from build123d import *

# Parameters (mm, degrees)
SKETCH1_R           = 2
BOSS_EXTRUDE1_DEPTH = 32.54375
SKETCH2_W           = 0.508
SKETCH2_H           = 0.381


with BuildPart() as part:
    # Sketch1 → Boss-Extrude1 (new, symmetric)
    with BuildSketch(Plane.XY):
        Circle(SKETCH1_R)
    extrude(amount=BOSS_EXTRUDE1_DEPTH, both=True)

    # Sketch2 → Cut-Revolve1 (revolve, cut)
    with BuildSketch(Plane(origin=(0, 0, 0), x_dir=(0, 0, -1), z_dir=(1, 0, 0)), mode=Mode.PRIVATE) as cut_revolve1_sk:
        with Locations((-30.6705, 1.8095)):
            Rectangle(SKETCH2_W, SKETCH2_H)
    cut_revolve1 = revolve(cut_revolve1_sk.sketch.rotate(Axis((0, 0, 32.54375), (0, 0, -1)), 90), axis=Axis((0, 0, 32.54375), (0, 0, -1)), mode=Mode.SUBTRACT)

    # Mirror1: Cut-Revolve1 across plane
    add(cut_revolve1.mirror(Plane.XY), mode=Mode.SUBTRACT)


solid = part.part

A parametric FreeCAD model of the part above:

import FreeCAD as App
import Part
import Sketcher

V = App.Vector
Q = App.Units.Quantity

doc = App.newDocument("Part")
body = doc.addObject("PartDesign::Body", "Body")

sketch1 = doc.addObject("Sketcher::SketchObject", "Sketch")
body.addObject(sketch1)
sketch1.AttachmentSupport = (doc.XY_Plane, [""])
sketch1.MapMode = "FlatFace"
sketch1.addGeometry(Part.Circle(V(0, 0, 0), V(0, 0, 1), 2), False)
sketch1.addConstraint([
    Sketcher.Constraint("Coincident", 0, 3, -1, 1),
    Sketcher.Constraint("Diameter", 0, Q("4 mm")),
])
pad1 = doc.addObject("PartDesign::Pad", "Pad")
body.addObject(pad1)
pad1.Profile = sketch1
pad1.Length = Q("2.5625 in")
pad1.Midplane = True

sketch2 = doc.addObject("Sketcher::SketchObject", "Sketch001")
body.addObject(sketch2)
sketch2.AttachmentSupport = (doc.YZ_Plane, [""])
sketch2.MapMode = "FlatFace"
sketch2.addGeometry([
    Part.LineSegment(V(2, 30.9245, 0), V(1.619, 30.9245, 0)),
    Part.LineSegment(V(1.619, 30.9245, 0), V(1.619, 30.4165, 0)),
    Part.LineSegment(V(1.619, 30.4165, 0), V(2, 30.4165, 0)),
    Part.LineSegment(V(2, 30.4165, 0), V(2, 30.9245, 0)),
], False)
sketch2.addConstraint([
    Sketcher.Constraint("Coincident", 0, 2, 1, 1),
    Sketcher.Constraint("Coincident", 1, 2, 2, 1),
    Sketcher.Constraint("Coincident", 2, 2, 3, 1),
    Sketcher.Constraint("Coincident", 3, 2, 0, 1),
    Sketcher.Constraint("Horizontal", 0),
    Sketcher.Constraint("Vertical", 1),
    Sketcher.Constraint("Horizontal", 2),
    Sketcher.Constraint("Vertical", 3),
    Sketcher.Constraint("DistanceY", 1, 2, 1, 1, Q("0.02 in")),
    Sketcher.Constraint("DistanceX", 0, 2, 0, 1, Q("0.015 in")),
    Sketcher.Constraint("DistanceY", -1, 1, 0, 2, Q("1.2175 in")),
    Sketcher.Constraint("DistanceX", -1, 1, 0, 2, Q("1.619 mm")),
])
groove = doc.addObject("PartDesign::Groove", "Groove")
body.addObject(groove)
groove.Profile = sketch2
groove.ReferenceAxis = (sketch2, ["V_Axis"])
groove.Angle = 360
doc.recompute()

mirrored = doc.addObject("PartDesign::Mirrored", "Mirrored")
body.addObject(mirrored)
mirrored.Originals = [groove]
mirrored.MirrorPlane = (doc.XY_Plane, [""])
body.Tip = mirrored

doc.recompute()
